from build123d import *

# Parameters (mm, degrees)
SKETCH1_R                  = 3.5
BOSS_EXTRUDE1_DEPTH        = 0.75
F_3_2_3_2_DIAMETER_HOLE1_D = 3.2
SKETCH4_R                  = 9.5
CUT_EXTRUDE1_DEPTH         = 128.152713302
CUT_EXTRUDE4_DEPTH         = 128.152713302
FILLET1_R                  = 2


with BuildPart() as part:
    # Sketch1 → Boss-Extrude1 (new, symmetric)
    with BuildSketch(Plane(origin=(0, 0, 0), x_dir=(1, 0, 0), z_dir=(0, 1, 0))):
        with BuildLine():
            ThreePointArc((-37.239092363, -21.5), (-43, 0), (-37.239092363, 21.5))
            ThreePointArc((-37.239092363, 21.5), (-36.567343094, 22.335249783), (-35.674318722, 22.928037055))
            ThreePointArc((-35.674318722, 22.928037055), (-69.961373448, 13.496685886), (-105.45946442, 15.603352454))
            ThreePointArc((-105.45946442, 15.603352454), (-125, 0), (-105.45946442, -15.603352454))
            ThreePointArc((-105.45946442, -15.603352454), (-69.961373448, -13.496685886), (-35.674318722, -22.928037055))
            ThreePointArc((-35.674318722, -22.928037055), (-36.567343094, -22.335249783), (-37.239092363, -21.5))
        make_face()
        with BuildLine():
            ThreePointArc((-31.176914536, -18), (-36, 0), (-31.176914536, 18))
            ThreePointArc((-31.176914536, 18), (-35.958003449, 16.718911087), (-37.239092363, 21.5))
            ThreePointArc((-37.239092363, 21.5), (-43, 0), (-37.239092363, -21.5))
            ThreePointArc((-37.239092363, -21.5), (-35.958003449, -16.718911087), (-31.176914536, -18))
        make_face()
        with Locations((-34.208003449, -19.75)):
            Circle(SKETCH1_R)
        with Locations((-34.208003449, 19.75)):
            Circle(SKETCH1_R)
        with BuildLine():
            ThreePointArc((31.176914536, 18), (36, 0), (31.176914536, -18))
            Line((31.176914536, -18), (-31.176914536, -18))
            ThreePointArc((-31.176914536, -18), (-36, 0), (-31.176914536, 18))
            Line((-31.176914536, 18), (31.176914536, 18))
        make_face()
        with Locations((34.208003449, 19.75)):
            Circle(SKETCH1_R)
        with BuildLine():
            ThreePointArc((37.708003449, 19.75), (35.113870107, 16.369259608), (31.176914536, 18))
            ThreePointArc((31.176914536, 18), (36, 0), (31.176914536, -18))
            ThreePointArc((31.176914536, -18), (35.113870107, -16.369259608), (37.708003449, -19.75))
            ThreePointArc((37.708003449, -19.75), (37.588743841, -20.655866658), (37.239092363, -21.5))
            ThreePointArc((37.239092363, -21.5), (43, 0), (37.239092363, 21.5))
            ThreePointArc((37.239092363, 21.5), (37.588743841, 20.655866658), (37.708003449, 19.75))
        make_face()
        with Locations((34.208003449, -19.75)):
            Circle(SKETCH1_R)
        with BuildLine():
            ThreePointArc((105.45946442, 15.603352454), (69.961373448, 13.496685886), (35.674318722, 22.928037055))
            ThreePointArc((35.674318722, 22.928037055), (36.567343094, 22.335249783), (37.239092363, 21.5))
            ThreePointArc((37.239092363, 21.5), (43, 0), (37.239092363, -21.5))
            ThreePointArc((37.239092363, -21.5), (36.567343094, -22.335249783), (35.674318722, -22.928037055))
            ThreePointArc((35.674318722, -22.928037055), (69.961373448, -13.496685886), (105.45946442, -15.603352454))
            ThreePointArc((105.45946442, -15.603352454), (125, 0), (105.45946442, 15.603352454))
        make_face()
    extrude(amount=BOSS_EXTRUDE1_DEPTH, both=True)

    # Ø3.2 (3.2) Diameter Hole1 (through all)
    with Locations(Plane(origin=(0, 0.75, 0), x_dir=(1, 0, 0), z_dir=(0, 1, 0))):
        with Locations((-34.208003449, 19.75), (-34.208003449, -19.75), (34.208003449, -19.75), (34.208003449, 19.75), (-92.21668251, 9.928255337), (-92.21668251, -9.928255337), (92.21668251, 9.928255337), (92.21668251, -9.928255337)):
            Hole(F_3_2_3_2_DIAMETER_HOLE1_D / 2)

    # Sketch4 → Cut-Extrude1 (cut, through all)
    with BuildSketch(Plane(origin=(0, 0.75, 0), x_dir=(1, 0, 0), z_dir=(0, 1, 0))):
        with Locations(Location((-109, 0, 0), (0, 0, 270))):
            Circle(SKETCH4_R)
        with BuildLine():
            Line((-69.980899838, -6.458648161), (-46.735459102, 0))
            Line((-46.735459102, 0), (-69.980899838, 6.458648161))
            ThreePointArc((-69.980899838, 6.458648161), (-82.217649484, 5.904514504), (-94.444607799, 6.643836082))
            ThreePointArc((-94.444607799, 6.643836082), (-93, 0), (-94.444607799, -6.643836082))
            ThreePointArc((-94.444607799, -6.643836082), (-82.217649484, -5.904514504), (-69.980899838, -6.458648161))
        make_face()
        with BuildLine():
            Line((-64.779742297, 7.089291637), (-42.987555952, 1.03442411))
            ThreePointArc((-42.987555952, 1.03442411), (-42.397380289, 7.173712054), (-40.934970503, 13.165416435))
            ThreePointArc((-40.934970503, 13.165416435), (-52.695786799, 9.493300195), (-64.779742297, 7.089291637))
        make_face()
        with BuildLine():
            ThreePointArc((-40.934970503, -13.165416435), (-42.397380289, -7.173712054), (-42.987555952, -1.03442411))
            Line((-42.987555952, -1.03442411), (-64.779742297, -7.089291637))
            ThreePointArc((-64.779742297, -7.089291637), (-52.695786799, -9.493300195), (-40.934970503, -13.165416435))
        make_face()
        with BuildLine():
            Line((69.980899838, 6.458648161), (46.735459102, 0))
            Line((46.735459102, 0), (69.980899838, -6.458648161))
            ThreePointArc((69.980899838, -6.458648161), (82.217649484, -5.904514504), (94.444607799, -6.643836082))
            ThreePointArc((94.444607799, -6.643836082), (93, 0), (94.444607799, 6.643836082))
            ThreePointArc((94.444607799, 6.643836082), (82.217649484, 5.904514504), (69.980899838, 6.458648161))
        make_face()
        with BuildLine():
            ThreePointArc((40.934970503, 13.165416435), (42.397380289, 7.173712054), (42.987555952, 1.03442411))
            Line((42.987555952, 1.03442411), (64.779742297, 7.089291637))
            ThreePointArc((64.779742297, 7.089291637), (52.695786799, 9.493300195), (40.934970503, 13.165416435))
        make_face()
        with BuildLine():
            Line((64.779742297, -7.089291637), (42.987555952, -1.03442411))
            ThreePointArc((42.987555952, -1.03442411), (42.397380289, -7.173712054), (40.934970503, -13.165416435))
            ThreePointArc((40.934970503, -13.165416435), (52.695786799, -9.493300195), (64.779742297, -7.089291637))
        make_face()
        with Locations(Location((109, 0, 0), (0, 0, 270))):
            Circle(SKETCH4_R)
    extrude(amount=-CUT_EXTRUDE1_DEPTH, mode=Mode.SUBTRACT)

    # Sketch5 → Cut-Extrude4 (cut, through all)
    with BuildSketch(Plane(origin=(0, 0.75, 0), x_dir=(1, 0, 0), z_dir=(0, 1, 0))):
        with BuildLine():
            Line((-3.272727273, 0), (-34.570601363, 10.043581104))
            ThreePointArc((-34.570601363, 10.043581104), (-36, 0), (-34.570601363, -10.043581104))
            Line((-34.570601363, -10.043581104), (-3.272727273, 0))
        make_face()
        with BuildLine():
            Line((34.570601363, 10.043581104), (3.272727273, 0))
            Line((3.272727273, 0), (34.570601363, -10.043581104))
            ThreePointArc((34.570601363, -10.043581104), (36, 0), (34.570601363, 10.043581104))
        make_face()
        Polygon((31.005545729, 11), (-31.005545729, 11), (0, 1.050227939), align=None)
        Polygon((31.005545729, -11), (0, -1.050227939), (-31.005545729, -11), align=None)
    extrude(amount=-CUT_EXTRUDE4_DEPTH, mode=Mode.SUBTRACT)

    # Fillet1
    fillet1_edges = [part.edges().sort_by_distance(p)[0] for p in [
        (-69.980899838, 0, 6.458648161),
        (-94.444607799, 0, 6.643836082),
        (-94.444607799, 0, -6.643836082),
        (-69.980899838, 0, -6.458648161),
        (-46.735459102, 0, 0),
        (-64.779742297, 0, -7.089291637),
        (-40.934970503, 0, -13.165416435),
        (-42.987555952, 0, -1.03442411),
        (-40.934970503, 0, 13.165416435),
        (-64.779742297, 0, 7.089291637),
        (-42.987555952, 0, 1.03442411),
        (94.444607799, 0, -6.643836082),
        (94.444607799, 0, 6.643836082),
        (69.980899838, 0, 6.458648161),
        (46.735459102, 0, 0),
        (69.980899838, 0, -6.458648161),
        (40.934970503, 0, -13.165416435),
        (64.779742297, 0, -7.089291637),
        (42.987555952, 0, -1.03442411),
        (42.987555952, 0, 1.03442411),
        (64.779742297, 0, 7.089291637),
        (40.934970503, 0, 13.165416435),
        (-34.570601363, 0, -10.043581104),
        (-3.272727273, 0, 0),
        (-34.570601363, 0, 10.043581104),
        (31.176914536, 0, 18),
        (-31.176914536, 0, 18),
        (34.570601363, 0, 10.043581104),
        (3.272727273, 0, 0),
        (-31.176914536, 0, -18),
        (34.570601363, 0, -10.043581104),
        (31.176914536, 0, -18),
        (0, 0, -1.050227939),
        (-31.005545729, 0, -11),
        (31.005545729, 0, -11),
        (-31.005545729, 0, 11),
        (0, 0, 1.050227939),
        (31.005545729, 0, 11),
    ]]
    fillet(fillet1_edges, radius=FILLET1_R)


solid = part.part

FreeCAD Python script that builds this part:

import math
import FreeCAD as App
import Part
import Sketcher
from FreeCAD import Vector


def edges_at(feature, points):
    """Names of the edges that pass closest to the given points."""
    edges = feature.Shape.Edges
    near = lambda p: min(range(len(edges)), key=lambda i: edges[i].distToShape(Part.Vertex(*p))[0])
    return sorted({f"Edge{near(p) + 1}" for p in points})

doc = App.newDocument("Part")
body = doc.addObject("PartDesign::Body", "Body")

# Sketch on XZ plane
sketch1 = body.newObject("Sketcher::SketchObject", "Sketch")
sketch1.AttachmentSupport = (doc.getObject("XZ_Plane"), [""])
sketch1.MapMode = "FlatFace"
sketch1.addGeometry([
    Part.ArcOfCircle(Part.Circle(Vector(-81.339566, -121.901191, 0), Vector(0, 0, 1), 109), math.radians(65.231861), math.radians(102.784429)),  # 0
    Part.ArcOfCircle(Part.Circle(Vector(-109, 0, 0), Vector(0, 0, 1), 16), math.radians(77.215571), math.radians(282.784429)),  # 1
    Part.ArcOfCircle(Part.Circle(Vector(-81.339566, 121.901191, 0), Vector(0, 0, 1), 109), math.radians(-102.784429), math.radians(-65.231861)),  # 2
    Part.ArcOfCircle(Part.Circle(Vector(-34.208003, 19.75, 0), Vector(0, 0, 1), 3.5), math.radians(-30), math.radians(114.768139)),  # 3
    Part.LineSegment(Vector(-31.176915, 18, 0), Vector(31.176915, 18, 0)),  # 4
    Part.ArcOfCircle(Part.Circle(Vector(34.208003, 19.75, 0), Vector(0, 0, 1), 3.5), math.radians(65.231861), math.radians(210)),  # 5
    Part.ArcOfCircle(Part.Circle(Vector(81.339566, 121.901191, 0), Vector(0, 0, 1), 109), math.radians(-114.768139), math.radians(-77.215571)),  # 6
    Part.ArcOfCircle(Part.Circle(Vector(109, 0, 0), Vector(0, 0, 1), 16), math.radians(-102.784429), math.radians(102.784429)),  # 7
    Part.ArcOfCircle(Part.Circle(Vector(81.339566, -121.901191, 0), Vector(0, 0, 1), 109), math.radians(77.215571), math.radians(114.768139)),  # 8
    Part.ArcOfCircle(Part.Circle(Vector(34.208003, -19.75, 0), Vector(0, 0, 1), 3.5), math.radians(150), math.radians(294.768139)),  # 9
    Part.LineSegment(Vector(31.176915, -18, 0), Vector(-31.176915, -18, 0)),  # 10
    Part.ArcOfCircle(Part.Circle(Vector(-34.208003, -19.75, 0), Vector(0, 0, 1), 3.5), math.radians(-114.768139), math.radians(30)),  # 11
], False)
sketch1.addConstraint([
    Sketcher.Constraint("Tangent", 0, 2, 1, 2),
    Sketcher.Constraint("Tangent", 1, 1, 2, 1),
    Sketcher.Constraint("Tangent", 2, 2, 3, 2),
    Sketcher.Constraint("Coincident", 3, 1, 4, 1),
    Sketcher.Constraint("Coincident", 4, 2, 5, 2),
    Sketcher.Constraint("Tangent", 5, 1, 6, 1),
    Sketcher.Constraint("Tangent", 6, 2, 7, 2),
    Sketcher.Constraint("Tangent", 7, 1, 8, 1),
    Sketcher.Constraint("Tangent", 8, 2, 9, 2),
    Sketcher.Constraint("Coincident", 9, 1, 10, 1),
    Sketcher.Constraint("Coincident", 10, 2, 11, 2),
    Sketcher.Constraint("Tangent", 11, 1, 0, 1),
    Sketcher.Constraint("Horizontal", 4),
    Sketcher.Constraint("Horizontal", 10),
    Sketcher.Constraint("Equal", 0, 2),
    Sketcher.Constraint("Equal", 3, 5),
    Sketcher.Constraint("Equal", 2, 6),
    Sketcher.Constraint("Equal", 1, 7),
    Sketcher.Constraint("Equal", 6, 8),
    Sketcher.Constraint("Equal", 5, 9),
    Sketcher.Constraint("Equal", 9, 11),
    Sketcher.Constraint("Symmetric", 0, 3, 6, 3, -1, 1),
    Sketcher.Constraint("Symmetric", 2, 3, 8, 3, -1, 1),
    Sketcher.Constraint("Symmetric", 3, 1, 9, 1, -1, 1),
    Sketcher.Constraint("Symmetric", 3, 3, 5, 3, -2),
    Sketcher.Constraint("PointOnObject", 1, 3, -1),
    Sketcher.Constraint("Horizontal", 9, 3, 11, 3),
    Sketcher.Constraint("Radius", 0, 109.0),
    Sketcher.Constraint("Radius", 1, 16.0),
    Sketcher.Constraint("Radius", 3, 3.5),
    Sketcher.Constraint("DistanceX", 1, 3, -1, 1, 109.0),
    Sketcher.Constraint("DistanceY", -1, 1, 3, 1, 18.0),
    Sketcher.Constraint("DistanceY", 9, 3, 5, 3, 39.5),
    Sketcher.Constraint("DistanceX", 4, 1, 4, 2, 62.353829),
])
pad1 = body.newObject("PartDesign::Pad", "Pad")
pad1.Profile = sketch1
pad1.Length = 1.5
pad1.Midplane = True

# Sketch on XZ plane
sketch2 = body.newObject("Sketcher::SketchObject", "Sketch001")
sketch2.AttachmentSupport = (doc.getObject("XZ_Plane"), [""])
sketch2.MapMode = "FlatFace"
sketch2.AttachmentOffset = App.Placement(Vector(0, 0, -0.75), App.Rotation())
sketch2.addGeometry([
    Part.Circle(Vector(-34.208003, -19.75, 0), Vector(0, 0, 1), 1.6),  # 0
    Part.Circle(Vector(-34.208003, 19.75, 0), Vector(0, 0, 1), 1.6),  # 1
    Part.Circle(Vector(34.208003, 19.75, 0), Vector(0, 0, 1), 1.6),  # 2
    Part.Circle(Vector(34.208003, -19.75, 0), Vector(0, 0, 1), 1.6),  # 3
    Part.Circle(Vector(-92.216683, -9.928255, 0), Vector(0, 0, 1), 1.6),  # 4
    Part.Circle(Vector(-92.216683, 9.928255, 0), Vector(0, 0, 1), 1.6),  # 5
    Part.Circle(Vector(92.216683, -9.928255, 0), Vector(0, 0, 1), 1.6),  # 6
    Part.Circle(Vector(92.216683, 9.928255, 0), Vector(0, 0, 1), 1.6),  # 7
], False)
sketch2.addConstraint([
    Sketcher.Constraint("Equal", 0, 1),
    Sketcher.Constraint("Equal", 1, 2),
    Sketcher.Constraint("Equal", 2, 3),
    Sketcher.Constraint("Equal", 3, 4),
    Sketcher.Constraint("Equal", 4, 5),
    Sketcher.Constraint("Equal", 5, 6),
    Sketcher.Constraint("Equal", 6, 7),
    Sketcher.Constraint("Symmetric", 0, 3, 2, 3, -1, 1),
    Sketcher.Constraint("Symmetric", 1, 3, 3, 3, -1, 1),
    Sketcher.Constraint("Symmetric", 5, 3, 6, 3, -1, 1),
    Sketcher.Constraint("Symmetric", 4, 3, 7, 3, -1, 1),
    Sketcher.Constraint("Symmetric", 1, 3, 2, 3, -2),
    Sketcher.Constraint("Symmetric", 4, 3, 6, 3, -2),
    Sketcher.Constraint("Diameter", 0, 3.2),
    Sketcher.Constraint("DistanceY", 0, 3, 1, 3, 39.5),
    Sketcher.Constraint("DistanceX", 4, 3, 0, 3, 58.008679),
    Sketcher.Constraint("DistanceY", 4, 3, 5, 3, 19.856511),
    Sketcher.Constraint("DistanceX", 0, 3, -1, 1, 34.208003),
])
doc.recompute()
hole = body.newObject("PartDesign::Hole", "Hole")
hole.Profile = sketch2
hole.ThreadType = "None"
hole.Diameter = 3.2
hole.DepthType = "ThroughAll"
hole.Reversed = True

# Sketch on XZ plane
sketch3 = body.newObject("Sketcher::SketchObject", "Sketch002")
sketch3.AttachmentSupport = (doc.getObject("XZ_Plane"), [""])
sketch3.MapMode = "FlatFace"
sketch3.AttachmentOffset = App.Placement(Vector(0, 0, -0.75), App.Rotation())
sketch3.addGeometry([
    Part.Circle(Vector(-109, 0, 0), Vector(0, 0, 1), 9.5),  # 0
    Part.LineSegment(Vector(-69.9809, 6.458648, 0), Vector(-46.735459, 0, 0)),  # 1
    Part.LineSegment(Vector(-46.735459, 0, 0), Vector(-69.9809, -6.458648, 0)),  # 2
    Part.ArcOfCircle(Part.Circle(Vector(-81.339566, -121.901191, 0), Vector(0, 0, 1), 116), math.radians(84.380619), math.radians(96.486811)),  # 3
    Part.ArcOfCircle(Part.Circle(Vector(-109, 0, 0), Vector(0, 0, 1), 16), math.radians(-24.534416), math.radians(24.534416)),  # 4
    Part.ArcOfCircle(Part.Circle(Vector(-81.339566, 121.901191, 0), Vector(0, 0, 1), 116), math.radians(-96.486811), math.radians(-84.380619)),  # 5
    Part.LineSegment(Vector(-64.779742, -7.089292, 0), Vector(-42.987556, -1.034424, 0)),  # 6
    Part.ArcOfCircle(Part.Circle(Vector(0, 0, 0), Vector(0, 0, 1), 43), math.radians(-178.621538), math.radians(-162.171283)),  # 7
    Part.ArcOfCircle(Part.Circle(Vector(-81.339566, -121.901191, 0), Vector(0, 0, 1), 116), math.radians(69.615683), math.radians(81.792581)),  # 8
    Part.ArcOfCircle(Part.Circle(Vector(0, 0, 0), Vector(0, 0, 1), 43), math.radians(162.171283), math.radians(178.621538)),  # 9
    Part.LineSegment(Vector(-42.987556, 1.034424, 0), Vector(-64.779742, 7.089292, 0)),  # 10
    Part.ArcOfCircle(Part.Circle(Vector(-81.339566, 121.901191, 0), Vector(0, 0, 1), 116), math.radians(-81.792581), math.radians(-69.615683)),  # 11
    Part.LineSegment(Vector(69.9809, -6.458648, 0), Vector(46.735459, 0, 0)),  # 12
    Part.LineSegment(Vector(46.735459, 0, 0), Vector(69.9809, 6.458648, 0)),  # 13
    Part.ArcOfCircle(Part.Circle(Vector(81.339566, 121.901191, 0), Vector(0, 0, 1), 116), math.radians(-95.619381), math.radians(-83.513189)),  # 14
    Part.ArcOfCircle(Part.Circle(Vector(109, 0, 0), Vector(0, 0, 1), 16), math.radians(155.465584), math.radians(204.534416)),  # 15
    Part.ArcOfCircle(Part.Circle(Vector(81.339566, -121.901191, 0), Vector(0, 0, 1), 116), math.radians(83.513189), math.radians(95.619381)),  # 16
    Part.ArcOfCircle(Part.Circle(Vector(0, 0, 0), Vector(0, 0, 1), 43), math.radians(-17.828717), math.radians(-1.378462)),  # 17
    Part.LineSegment(Vector(42.987556, -1.034424, 0), Vector(64.779742, -7.089292, 0)),  # 18
    Part.ArcOfCircle(Part.Circle(Vector(81.339566, -121.901191, 0), Vector(0, 0, 1), 116), math.radians(98.207419), math.radians(110.384317)),  # 19
    Part.LineSegment(Vector(64.779742, 7.089292, 0), Vector(42.987556, 1.034424, 0)),  # 20
    Part.ArcOfCircle(Part.Circle(Vector(0, 0, 0), Vector(0, 0, 1), 43), math.radians(1.378462), math.radians(17.828717)),  # 21
    Part.ArcOfCircle(Part.Circle(Vector(81.339566, 121.901191, 0), Vector(0, 0, 1), 116), math.radians(-110.384317), math.radians(-98.207419)),  # 22
    Part.Circle(Vector(109, 0, 0), Vector(0, 0, 1), 9.5),  # 23
], False)
sketch3.addConstraint([
    Sketcher.Constraint("Coincident", 1, 2, 2, 1),
    Sketcher.Constraint("Coincident", 2, 2, 3, 1),
    Sketcher.Constraint("Coincident", 3, 2, 4, 1),
    Sketcher.Constraint("Coincident", 4, 2, 5, 1),
    Sketcher.Constraint("Coincident", 5, 2, 1, 1),
    Sketcher.Constraint("Coincident", 6, 2, 7, 1),
    Sketcher.Constraint("Coincident", 7, 2, 8, 1),
    Sketcher.Constraint("Coincident", 8, 2, 6, 1),
    Sketcher.Constraint("Coincident", 9, 2, 10, 1),
    Sketcher.Constraint("Coincident", 10, 2, 11, 1),
    Sketcher.Constraint("Coincident", 11, 2, 9, 1),
    Sketcher.Constraint("Coincident", 12, 2, 13, 1),
    Sketcher.Constraint("Coincident", 13, 2, 14, 1),
    Sketcher.Constraint("Coincident", 14, 2, 15, 1),
    Sketcher.Constraint("Coincident", 15, 2, 16, 1),
    Sketcher.Constraint("Coincident", 16, 2, 12, 1),
    Sketcher.Constraint("Coincident", 17, 2, 18, 1),
    Sketcher.Constraint("Coincident", 18, 2, 19, 1),
    Sketcher.Constraint("Coincident", 19, 2, 17, 1),
    Sketcher.Constraint("Coincident", 20, 2, 21, 1),
    Sketcher.Constraint("Coincident", 21, 2, 22, 1),
    Sketcher.Constraint("Coincident", 22, 2, 20, 1),
    Sketcher.Constraint("Coincident", 7, 3, -1, 1),
    Sketcher.Constraint("Coincident", 9, 3, -1, 1),
    Sketcher.Constraint("Coincident", 17, 3, -1, 1),
    Sketcher.Constraint("Coincident", 21, 3, -1, 1),
    Sketcher.Constraint("Coincident", 4, 3, 0, 3),
    Sketcher.Constraint("Coincident", 8, 3, 3, 3),
    Sketcher.Constraint("Coincident", 11, 3, 5, 3),
    Sketcher.Constraint("Coincident", 19, 3, 16, 3),
    Sketcher.Constraint("Coincident", 22, 3, 14, 3),
    Sketcher.Constraint("Coincident", 23, 3, 15, 3),
    Sketcher.Constraint("Equal", 3, 5),
    Sketcher.Constraint("Equal", 5, 8),
    Sketcher.Constraint("Equal", 7, 9),
    Sketcher.Constraint("Equal", 8, 11),
    Sketcher.Constraint("Equal", 11, 14),
    Sketcher.Constraint("Equal", 4, 15),
    Sketcher.Constraint("Equal", 14, 16),
    Sketcher.Constraint("Equal", 9, 17),
    Sketcher.Constraint("Equal", 16, 19),
    Sketcher.Constraint("Equal", 17, 21),
    Sketcher.Constraint("Equal", 19, 22),
    Sketcher.Constraint("Equal", 0, 23),
    Sketcher.Constraint("Symmetric", 3, 3, 14, 3, -1, 1),
    Sketcher.Constraint("Symmetric", 0, 3, 15, 3, -1, 1),
    Sketcher.Constraint("Symmetric", 5, 3, 16, 3, -1, 1),
    Sketcher.Constraint("Symmetric", 1, 2, 12, 2, -1, 1),
    Sketcher.Constraint("Symmetric", 5, 3, 14, 3, -2),
    Sketcher.Constraint("PointOnObject", 0, 3, -1),
    Sketcher.Constraint("PointOnObject", 1, 2, -1),
    Sketcher.Constraint("Parallel", 2, 6),
    Sketcher.Constraint("Parallel", 1, 10),
    Sketcher.Constraint("Parallel", 10, 12),
    Sketcher.Constraint("Parallel", 6, 13),
    Sketcher.Constraint("Parallel", 12, 18),
    Sketcher.Constraint("Parallel", 13, 20),
    Sketcher.Constraint("Horizontal", 5, 2, 13, 2),
    Sketcher.Constraint("Horizontal", 6, 2, 17, 2),
    Sketcher.Constraint("Horizontal", 9, 2, 20, 2),
    Sketcher.Constraint("Vertical", 6, 2, 9, 2),
    Sketcher.Constraint("Diameter", 0, 19.0),
    Sketcher.Constraint("Radius", 3, 116.0),
    Sketcher.Constraint("Radius", 4, 16.0),
    Sketcher.Constraint("Radius", 7, 43.0),
    Sketcher.Constraint("DistanceX", 0, 3, -1, 1, 109.0),
    Sketcher.Constraint("DistanceX", 2, 2, -1, 1, 69.9809),
    Sketcher.Constraint("Distance", 6, 22.61771),
    Sketcher.Constraint("DistanceY", 3, 3, -1, 1, 121.901191),
    Sketcher.Constraint("DistanceX", 1, 2, -1, 1, 46.735459),
    Sketcher.Constraint("DistanceY", 2, 2, -1, 1, 6.458648),
])
pocket1 = body.newObject("PartDesign::Pocket", "Pocket")
pocket1.Profile = sketch3
pocket1.Type = "ThroughAll"
pocket1.Reversed = True

# Sketch on XZ plane
sketch4 = body.newObject("Sketcher::SketchObject", "Sketch003")
sketch4.AttachmentSupport = (doc.getObject("XZ_Plane"), [""])
sketch4.MapMode = "FlatFace"
sketch4.AttachmentOffset = App.Placement(Vector(0, 0, -0.75), App.Rotation())
sketch4.addGeometry([
    Part.LineSegment(Vector(-3.272727, 0, 0), Vector(-34.570601, -10.043581, 0)),  # 0
    Part.ArcOfCircle(Part.Circle(Vector(0, 0, 0), Vector(0, 0, 1), 36), math.radians(163.800164), math.radians(196.199836)),  # 1
    Part.LineSegment(Vector(-34.570601, 10.043581, 0), Vector(-3.272727, 0, 0)),  # 2
    Part.LineSegment(Vector(34.570601, -10.043581, 0), Vector(3.272727, 0, 0)),  # 3
    Part.LineSegment(Vector(3.272727, 0, 0), Vector(34.570601, 10.043581, 0)),  # 4
    Part.ArcOfCircle(Part.Circle(Vector(0, 0, 0), Vector(0, 0, 1), 36), math.radians(-16.199836), math.radians(16.199836)),  # 5
    Part.LineSegment(Vector(31.005546, -11, 0), Vector(-31.005546, -11, 0)),  # 6
    Part.LineSegment(Vector(-31.005546, -11, 0), Vector(0, -1.050228, 0)),  # 7
    Part.LineSegment(Vector(0, -1.050228, 0), Vector(31.005546, -11, 0)),  # 8
    Part.LineSegment(Vector(31.005546, 11, 0), Vector(0, 1.050228, 0)),  # 9
    Part.LineSegment(Vector(0, 1.050228, 0), Vector(-31.005546, 11, 0)),  # 10
    Part.LineSegment(Vector(-31.005546, 11, 0), Vector(31.005546, 11, 0)),  # 11
], False)
sketch4.addConstraint([
    Sketcher.Constraint("Coincident", 0, 2, 1, 2),
    Sketcher.Constraint("Coincident", 1, 1, 2, 1),
    Sketcher.Constraint("Coincident", 2, 2, 0, 1),
    Sketcher.Constraint("Coincident", 3, 2, 4, 1),
    Sketcher.Constraint("Coincident", 4, 2, 5, 2),
    Sketcher.Constraint("Coincident", 5, 1, 3, 1),
    Sketcher.Constraint("Coincident", 6, 2, 7, 1),
    Sketcher.Constraint("Coincident", 7, 2, 8, 1),
    Sketcher.Constraint("Coincident", 8, 2, 6, 1),
    Sketcher.Constraint("Coincident", 9, 2, 10, 1),
    Sketcher.Constraint("Coincident", 10, 2, 11, 1),
    Sketcher.Constraint("Coincident", 11, 2, 9, 1),
    Sketcher.Constraint("Horizontal", 6),
    Sketcher.Constraint("Horizontal", 11),
    Sketcher.Constraint("Coincident", 1, 3, -1, 1),
    Sketcher.Constraint("Coincident", 5, 3, -1, 1),
    Sketcher.Constraint("Equal", 1, 5),
    Sketcher.Constraint("Symmetric", 2, 2, 3, 2, -1, 1),
    Sketcher.Constraint("Symmetric", 7, 2, 9, 2, -1, 1),
    Sketcher.Constraint("Symmetric", 8, 2, 10, 2, -1, 1),
    Sketcher.Constraint("PointOnObject", 2, 2, -1),
    Sketcher.Constraint("PointOnObject", 7, 2, -2),
    Sketcher.Constraint("Parallel", 2, 3),
    Sketcher.Constraint("Parallel", 0, 4),
    Sketcher.Constraint("Parallel", 4, 7),
    Sketcher.Constraint("Parallel", 3, 8),
    Sketcher.Constraint("Parallel", 7, 9),
    Sketcher.Constraint("Horizontal", 1, 1, 4, 2),
    Sketcher.Constraint("Radius", 1, 36.0),
    Sketcher.Constraint("DistanceY", 6, 2, -1, 1, 11.0),
    Sketcher.Constraint("Distance", 0, 32.869902),
    Sketcher.Constraint("DistanceX", 6, 2, 6, 1, 62.011091),
    Sketcher.Constraint("DistanceX", 0, 2, -1, 1, 34.570601),
])
pocket2 = body.newObject("PartDesign::Pocket", "Pocket001")
pocket2.Profile = sketch4
pocket2.Type = "ThroughAll"
pocket2.Reversed = True
doc.recompute()

fillet = body.newObject("PartDesign::Fillet", "Fillet")
fillet.Base = (pocket2, edges_at(pocket2, [
    (-69.981, 0, 6.459),
    (-94.445, 0, 6.644),
    (-94.445, 0, -6.644),
    (-69.981, 0, -6.459),
    (-46.735, 0, 0),
    (-64.78, 0, -7.089),
    (-40.935, 0, -13.165),
    (-42.988, 0, -1.034),
    (-40.935, 0, 13.165),
    (-64.78, 0, 7.089),
    (-42.988, 0, 1.034),
    (94.445, 0, -6.644),
    (94.445, 0, 6.644),
    (69.981, 0, 6.459),
    (46.735, 0, 0),
    (69.981, 0, -6.459),
    (40.935, 0, -13.165),
    (64.78, 0, -7.089),
    (42.988, 0, -1.034),
    (42.988, 0, 1.034),
    (64.78, 0, 7.089),
    (40.935, 0, 13.165),
    (-34.571, 0, -10.044),
    (-3.273, 0, 0),
    (-34.571, 0, 10.044),
    (31.177, 0, 18),
    (-31.177, 0, 18),
    (34.571, 0, 10.044),
    (3.273, 0, 0),
    (-31.177, 0, -18),
    (34.571, 0, -10.044),
    (31.177, 0, -18),
    (0, 0, -1.05),
    (-31.006, 0, -11),
    (31.006, 0, -11),
    (-31.006, 0, 11),
    (0, 0, 1.05),
    (31.006, 0, 11),
]))
fillet.Radius = 2

doc.recompute()
